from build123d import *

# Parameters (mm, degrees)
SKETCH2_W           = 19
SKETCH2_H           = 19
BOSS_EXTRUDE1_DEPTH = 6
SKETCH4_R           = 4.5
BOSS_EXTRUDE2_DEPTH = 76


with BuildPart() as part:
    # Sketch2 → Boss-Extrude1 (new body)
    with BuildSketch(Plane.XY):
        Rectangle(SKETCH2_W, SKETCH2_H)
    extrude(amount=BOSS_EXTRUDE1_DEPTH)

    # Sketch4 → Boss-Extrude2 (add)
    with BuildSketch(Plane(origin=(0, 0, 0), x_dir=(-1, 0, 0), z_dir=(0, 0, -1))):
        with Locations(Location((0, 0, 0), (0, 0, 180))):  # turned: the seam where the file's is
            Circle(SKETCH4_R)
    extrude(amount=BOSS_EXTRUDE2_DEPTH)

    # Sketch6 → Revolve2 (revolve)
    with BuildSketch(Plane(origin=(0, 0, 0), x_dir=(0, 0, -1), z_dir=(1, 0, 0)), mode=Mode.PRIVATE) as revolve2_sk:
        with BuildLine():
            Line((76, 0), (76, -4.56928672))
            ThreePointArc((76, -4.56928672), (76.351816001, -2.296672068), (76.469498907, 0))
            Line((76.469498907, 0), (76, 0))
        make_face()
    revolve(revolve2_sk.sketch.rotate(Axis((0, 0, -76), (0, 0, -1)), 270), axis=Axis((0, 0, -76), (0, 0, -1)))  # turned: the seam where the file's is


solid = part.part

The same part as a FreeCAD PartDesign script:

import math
import FreeCAD as App
import Part
import Sketcher

V = App.Vector


def add_polygon(sketch, points):
    """Adds a closed chain of lines whose ends are joined by coincident constraints."""
    first, n = sketch.GeometryCount, len(points)
    for a, b in zip(points, points[1:] + points[:1]):
        sketch.addGeometry(Part.LineSegment(App.Vector(*a, 0), App.Vector(*b, 0)), False)
    for i in range(n):
        sketch.addConstraint(Sketcher.Constraint("Coincident", first + i, 2, first + (i + 1) % n, 1))

doc = App.newDocument("Part")
body = doc.addObject("PartDesign::Body", "Body")

# Sketch on XY plane
sketch1 = body.newObject("Sketcher::SketchObject", "Sketch")
sketch1.AttachmentSupport = (doc.getObject("XY_Plane"), [""])
sketch1.MapMode = "FlatFace"
add_polygon(sketch1, [(-10, 10), (-10, -10), (10, -10), (10, 10)])  # lines 0-3
sketch1.addConstraint([
    Sketcher.Constraint("Vertical", 0),
    Sketcher.Constraint("Horizontal", 1),
    Sketcher.Constraint("Vertical", 2),
    Sketcher.Constraint("Horizontal", 3),
    Sketcher.Constraint("Symmetric", 0, 2, 2, 2, -1, 1),
    Sketcher.Constraint("Equal", 3, 0),
    Sketcher.Constraint("DistanceX", 1, 1, 1, 2, 19.0),
])
pad1 = body.newObject("PartDesign::Pad", "Pad")
pad1.Profile = sketch1
pad1.Length = 6

# Sketch on XY plane
sketch2 = body.newObject("Sketcher::SketchObject", "Sketch001")
sketch2.AttachmentSupport = (doc.getObject("XY_Plane"), [""])
sketch2.MapMode = "FlatFace"
sketch2.addGeometry(Part.Circle(V(0, 0, 0), V(0, 0, 1), 4.5), False)
sketch2.addConstraint([
    Sketcher.Constraint("Coincident", 0, 3, -1, 1),
    Sketcher.Constraint("Diameter", 0, 9.0),
])
pad2 = body.newObject("PartDesign::Pad", "Pad001")
pad2.Profile = sketch2
pad2.Length = 76
pad2.Reversed = True

# Sketch on YZ plane
sketch3 = body.newObject("Sketcher::SketchObject", "Sketch002")
sketch3.AttachmentSupport = (doc.getObject("YZ_Plane"), [""])
sketch3.MapMode = "FlatFace"
sketch3.addGeometry([
    Part.LineSegment(V(0, -76, 0), V(-4.57, -76, 0)),
    Part.ArcOfCircle(Part.Circle(V(0, -54, 0), V(0, 0, 1), 22.47), math.radians(-101.73), math.radians(-90)),
    Part.LineSegment(V(0, -76.47, 0), V(0, -76, 0)),
], False)
sketch3.addConstraint([
    Sketcher.Constraint("Coincident", 0, 2, 1, 1),
    Sketcher.Constraint("Coincident", 1, 2, 2, 1),
    Sketcher.Constraint("Coincident", 2, 2, 0, 1),
    Sketcher.Constraint("Horizontal", 0),
    Sketcher.Constraint("Vertical", 2),
    Sketcher.Constraint("PointOnObject", 1, 3, -2),
    Sketcher.Constraint("PointOnObject", 1, 2, -2),
    Sketcher.Constraint("DistanceY", 1, 3, -1, 1, 54.0),
    Sketcher.Constraint("DistanceY", 0, 2, -1, 1, 76.0),
    Sketcher.Constraint("Radius", 1, 22.469499),
])
revolution = body.newObject("PartDesign::Revolution", "Revolution")
revolution.Profile = sketch3
revolution.ReferenceAxis = (sketch3, ["V_Axis"])
revolution.Angle = 360

doc.recompute()
